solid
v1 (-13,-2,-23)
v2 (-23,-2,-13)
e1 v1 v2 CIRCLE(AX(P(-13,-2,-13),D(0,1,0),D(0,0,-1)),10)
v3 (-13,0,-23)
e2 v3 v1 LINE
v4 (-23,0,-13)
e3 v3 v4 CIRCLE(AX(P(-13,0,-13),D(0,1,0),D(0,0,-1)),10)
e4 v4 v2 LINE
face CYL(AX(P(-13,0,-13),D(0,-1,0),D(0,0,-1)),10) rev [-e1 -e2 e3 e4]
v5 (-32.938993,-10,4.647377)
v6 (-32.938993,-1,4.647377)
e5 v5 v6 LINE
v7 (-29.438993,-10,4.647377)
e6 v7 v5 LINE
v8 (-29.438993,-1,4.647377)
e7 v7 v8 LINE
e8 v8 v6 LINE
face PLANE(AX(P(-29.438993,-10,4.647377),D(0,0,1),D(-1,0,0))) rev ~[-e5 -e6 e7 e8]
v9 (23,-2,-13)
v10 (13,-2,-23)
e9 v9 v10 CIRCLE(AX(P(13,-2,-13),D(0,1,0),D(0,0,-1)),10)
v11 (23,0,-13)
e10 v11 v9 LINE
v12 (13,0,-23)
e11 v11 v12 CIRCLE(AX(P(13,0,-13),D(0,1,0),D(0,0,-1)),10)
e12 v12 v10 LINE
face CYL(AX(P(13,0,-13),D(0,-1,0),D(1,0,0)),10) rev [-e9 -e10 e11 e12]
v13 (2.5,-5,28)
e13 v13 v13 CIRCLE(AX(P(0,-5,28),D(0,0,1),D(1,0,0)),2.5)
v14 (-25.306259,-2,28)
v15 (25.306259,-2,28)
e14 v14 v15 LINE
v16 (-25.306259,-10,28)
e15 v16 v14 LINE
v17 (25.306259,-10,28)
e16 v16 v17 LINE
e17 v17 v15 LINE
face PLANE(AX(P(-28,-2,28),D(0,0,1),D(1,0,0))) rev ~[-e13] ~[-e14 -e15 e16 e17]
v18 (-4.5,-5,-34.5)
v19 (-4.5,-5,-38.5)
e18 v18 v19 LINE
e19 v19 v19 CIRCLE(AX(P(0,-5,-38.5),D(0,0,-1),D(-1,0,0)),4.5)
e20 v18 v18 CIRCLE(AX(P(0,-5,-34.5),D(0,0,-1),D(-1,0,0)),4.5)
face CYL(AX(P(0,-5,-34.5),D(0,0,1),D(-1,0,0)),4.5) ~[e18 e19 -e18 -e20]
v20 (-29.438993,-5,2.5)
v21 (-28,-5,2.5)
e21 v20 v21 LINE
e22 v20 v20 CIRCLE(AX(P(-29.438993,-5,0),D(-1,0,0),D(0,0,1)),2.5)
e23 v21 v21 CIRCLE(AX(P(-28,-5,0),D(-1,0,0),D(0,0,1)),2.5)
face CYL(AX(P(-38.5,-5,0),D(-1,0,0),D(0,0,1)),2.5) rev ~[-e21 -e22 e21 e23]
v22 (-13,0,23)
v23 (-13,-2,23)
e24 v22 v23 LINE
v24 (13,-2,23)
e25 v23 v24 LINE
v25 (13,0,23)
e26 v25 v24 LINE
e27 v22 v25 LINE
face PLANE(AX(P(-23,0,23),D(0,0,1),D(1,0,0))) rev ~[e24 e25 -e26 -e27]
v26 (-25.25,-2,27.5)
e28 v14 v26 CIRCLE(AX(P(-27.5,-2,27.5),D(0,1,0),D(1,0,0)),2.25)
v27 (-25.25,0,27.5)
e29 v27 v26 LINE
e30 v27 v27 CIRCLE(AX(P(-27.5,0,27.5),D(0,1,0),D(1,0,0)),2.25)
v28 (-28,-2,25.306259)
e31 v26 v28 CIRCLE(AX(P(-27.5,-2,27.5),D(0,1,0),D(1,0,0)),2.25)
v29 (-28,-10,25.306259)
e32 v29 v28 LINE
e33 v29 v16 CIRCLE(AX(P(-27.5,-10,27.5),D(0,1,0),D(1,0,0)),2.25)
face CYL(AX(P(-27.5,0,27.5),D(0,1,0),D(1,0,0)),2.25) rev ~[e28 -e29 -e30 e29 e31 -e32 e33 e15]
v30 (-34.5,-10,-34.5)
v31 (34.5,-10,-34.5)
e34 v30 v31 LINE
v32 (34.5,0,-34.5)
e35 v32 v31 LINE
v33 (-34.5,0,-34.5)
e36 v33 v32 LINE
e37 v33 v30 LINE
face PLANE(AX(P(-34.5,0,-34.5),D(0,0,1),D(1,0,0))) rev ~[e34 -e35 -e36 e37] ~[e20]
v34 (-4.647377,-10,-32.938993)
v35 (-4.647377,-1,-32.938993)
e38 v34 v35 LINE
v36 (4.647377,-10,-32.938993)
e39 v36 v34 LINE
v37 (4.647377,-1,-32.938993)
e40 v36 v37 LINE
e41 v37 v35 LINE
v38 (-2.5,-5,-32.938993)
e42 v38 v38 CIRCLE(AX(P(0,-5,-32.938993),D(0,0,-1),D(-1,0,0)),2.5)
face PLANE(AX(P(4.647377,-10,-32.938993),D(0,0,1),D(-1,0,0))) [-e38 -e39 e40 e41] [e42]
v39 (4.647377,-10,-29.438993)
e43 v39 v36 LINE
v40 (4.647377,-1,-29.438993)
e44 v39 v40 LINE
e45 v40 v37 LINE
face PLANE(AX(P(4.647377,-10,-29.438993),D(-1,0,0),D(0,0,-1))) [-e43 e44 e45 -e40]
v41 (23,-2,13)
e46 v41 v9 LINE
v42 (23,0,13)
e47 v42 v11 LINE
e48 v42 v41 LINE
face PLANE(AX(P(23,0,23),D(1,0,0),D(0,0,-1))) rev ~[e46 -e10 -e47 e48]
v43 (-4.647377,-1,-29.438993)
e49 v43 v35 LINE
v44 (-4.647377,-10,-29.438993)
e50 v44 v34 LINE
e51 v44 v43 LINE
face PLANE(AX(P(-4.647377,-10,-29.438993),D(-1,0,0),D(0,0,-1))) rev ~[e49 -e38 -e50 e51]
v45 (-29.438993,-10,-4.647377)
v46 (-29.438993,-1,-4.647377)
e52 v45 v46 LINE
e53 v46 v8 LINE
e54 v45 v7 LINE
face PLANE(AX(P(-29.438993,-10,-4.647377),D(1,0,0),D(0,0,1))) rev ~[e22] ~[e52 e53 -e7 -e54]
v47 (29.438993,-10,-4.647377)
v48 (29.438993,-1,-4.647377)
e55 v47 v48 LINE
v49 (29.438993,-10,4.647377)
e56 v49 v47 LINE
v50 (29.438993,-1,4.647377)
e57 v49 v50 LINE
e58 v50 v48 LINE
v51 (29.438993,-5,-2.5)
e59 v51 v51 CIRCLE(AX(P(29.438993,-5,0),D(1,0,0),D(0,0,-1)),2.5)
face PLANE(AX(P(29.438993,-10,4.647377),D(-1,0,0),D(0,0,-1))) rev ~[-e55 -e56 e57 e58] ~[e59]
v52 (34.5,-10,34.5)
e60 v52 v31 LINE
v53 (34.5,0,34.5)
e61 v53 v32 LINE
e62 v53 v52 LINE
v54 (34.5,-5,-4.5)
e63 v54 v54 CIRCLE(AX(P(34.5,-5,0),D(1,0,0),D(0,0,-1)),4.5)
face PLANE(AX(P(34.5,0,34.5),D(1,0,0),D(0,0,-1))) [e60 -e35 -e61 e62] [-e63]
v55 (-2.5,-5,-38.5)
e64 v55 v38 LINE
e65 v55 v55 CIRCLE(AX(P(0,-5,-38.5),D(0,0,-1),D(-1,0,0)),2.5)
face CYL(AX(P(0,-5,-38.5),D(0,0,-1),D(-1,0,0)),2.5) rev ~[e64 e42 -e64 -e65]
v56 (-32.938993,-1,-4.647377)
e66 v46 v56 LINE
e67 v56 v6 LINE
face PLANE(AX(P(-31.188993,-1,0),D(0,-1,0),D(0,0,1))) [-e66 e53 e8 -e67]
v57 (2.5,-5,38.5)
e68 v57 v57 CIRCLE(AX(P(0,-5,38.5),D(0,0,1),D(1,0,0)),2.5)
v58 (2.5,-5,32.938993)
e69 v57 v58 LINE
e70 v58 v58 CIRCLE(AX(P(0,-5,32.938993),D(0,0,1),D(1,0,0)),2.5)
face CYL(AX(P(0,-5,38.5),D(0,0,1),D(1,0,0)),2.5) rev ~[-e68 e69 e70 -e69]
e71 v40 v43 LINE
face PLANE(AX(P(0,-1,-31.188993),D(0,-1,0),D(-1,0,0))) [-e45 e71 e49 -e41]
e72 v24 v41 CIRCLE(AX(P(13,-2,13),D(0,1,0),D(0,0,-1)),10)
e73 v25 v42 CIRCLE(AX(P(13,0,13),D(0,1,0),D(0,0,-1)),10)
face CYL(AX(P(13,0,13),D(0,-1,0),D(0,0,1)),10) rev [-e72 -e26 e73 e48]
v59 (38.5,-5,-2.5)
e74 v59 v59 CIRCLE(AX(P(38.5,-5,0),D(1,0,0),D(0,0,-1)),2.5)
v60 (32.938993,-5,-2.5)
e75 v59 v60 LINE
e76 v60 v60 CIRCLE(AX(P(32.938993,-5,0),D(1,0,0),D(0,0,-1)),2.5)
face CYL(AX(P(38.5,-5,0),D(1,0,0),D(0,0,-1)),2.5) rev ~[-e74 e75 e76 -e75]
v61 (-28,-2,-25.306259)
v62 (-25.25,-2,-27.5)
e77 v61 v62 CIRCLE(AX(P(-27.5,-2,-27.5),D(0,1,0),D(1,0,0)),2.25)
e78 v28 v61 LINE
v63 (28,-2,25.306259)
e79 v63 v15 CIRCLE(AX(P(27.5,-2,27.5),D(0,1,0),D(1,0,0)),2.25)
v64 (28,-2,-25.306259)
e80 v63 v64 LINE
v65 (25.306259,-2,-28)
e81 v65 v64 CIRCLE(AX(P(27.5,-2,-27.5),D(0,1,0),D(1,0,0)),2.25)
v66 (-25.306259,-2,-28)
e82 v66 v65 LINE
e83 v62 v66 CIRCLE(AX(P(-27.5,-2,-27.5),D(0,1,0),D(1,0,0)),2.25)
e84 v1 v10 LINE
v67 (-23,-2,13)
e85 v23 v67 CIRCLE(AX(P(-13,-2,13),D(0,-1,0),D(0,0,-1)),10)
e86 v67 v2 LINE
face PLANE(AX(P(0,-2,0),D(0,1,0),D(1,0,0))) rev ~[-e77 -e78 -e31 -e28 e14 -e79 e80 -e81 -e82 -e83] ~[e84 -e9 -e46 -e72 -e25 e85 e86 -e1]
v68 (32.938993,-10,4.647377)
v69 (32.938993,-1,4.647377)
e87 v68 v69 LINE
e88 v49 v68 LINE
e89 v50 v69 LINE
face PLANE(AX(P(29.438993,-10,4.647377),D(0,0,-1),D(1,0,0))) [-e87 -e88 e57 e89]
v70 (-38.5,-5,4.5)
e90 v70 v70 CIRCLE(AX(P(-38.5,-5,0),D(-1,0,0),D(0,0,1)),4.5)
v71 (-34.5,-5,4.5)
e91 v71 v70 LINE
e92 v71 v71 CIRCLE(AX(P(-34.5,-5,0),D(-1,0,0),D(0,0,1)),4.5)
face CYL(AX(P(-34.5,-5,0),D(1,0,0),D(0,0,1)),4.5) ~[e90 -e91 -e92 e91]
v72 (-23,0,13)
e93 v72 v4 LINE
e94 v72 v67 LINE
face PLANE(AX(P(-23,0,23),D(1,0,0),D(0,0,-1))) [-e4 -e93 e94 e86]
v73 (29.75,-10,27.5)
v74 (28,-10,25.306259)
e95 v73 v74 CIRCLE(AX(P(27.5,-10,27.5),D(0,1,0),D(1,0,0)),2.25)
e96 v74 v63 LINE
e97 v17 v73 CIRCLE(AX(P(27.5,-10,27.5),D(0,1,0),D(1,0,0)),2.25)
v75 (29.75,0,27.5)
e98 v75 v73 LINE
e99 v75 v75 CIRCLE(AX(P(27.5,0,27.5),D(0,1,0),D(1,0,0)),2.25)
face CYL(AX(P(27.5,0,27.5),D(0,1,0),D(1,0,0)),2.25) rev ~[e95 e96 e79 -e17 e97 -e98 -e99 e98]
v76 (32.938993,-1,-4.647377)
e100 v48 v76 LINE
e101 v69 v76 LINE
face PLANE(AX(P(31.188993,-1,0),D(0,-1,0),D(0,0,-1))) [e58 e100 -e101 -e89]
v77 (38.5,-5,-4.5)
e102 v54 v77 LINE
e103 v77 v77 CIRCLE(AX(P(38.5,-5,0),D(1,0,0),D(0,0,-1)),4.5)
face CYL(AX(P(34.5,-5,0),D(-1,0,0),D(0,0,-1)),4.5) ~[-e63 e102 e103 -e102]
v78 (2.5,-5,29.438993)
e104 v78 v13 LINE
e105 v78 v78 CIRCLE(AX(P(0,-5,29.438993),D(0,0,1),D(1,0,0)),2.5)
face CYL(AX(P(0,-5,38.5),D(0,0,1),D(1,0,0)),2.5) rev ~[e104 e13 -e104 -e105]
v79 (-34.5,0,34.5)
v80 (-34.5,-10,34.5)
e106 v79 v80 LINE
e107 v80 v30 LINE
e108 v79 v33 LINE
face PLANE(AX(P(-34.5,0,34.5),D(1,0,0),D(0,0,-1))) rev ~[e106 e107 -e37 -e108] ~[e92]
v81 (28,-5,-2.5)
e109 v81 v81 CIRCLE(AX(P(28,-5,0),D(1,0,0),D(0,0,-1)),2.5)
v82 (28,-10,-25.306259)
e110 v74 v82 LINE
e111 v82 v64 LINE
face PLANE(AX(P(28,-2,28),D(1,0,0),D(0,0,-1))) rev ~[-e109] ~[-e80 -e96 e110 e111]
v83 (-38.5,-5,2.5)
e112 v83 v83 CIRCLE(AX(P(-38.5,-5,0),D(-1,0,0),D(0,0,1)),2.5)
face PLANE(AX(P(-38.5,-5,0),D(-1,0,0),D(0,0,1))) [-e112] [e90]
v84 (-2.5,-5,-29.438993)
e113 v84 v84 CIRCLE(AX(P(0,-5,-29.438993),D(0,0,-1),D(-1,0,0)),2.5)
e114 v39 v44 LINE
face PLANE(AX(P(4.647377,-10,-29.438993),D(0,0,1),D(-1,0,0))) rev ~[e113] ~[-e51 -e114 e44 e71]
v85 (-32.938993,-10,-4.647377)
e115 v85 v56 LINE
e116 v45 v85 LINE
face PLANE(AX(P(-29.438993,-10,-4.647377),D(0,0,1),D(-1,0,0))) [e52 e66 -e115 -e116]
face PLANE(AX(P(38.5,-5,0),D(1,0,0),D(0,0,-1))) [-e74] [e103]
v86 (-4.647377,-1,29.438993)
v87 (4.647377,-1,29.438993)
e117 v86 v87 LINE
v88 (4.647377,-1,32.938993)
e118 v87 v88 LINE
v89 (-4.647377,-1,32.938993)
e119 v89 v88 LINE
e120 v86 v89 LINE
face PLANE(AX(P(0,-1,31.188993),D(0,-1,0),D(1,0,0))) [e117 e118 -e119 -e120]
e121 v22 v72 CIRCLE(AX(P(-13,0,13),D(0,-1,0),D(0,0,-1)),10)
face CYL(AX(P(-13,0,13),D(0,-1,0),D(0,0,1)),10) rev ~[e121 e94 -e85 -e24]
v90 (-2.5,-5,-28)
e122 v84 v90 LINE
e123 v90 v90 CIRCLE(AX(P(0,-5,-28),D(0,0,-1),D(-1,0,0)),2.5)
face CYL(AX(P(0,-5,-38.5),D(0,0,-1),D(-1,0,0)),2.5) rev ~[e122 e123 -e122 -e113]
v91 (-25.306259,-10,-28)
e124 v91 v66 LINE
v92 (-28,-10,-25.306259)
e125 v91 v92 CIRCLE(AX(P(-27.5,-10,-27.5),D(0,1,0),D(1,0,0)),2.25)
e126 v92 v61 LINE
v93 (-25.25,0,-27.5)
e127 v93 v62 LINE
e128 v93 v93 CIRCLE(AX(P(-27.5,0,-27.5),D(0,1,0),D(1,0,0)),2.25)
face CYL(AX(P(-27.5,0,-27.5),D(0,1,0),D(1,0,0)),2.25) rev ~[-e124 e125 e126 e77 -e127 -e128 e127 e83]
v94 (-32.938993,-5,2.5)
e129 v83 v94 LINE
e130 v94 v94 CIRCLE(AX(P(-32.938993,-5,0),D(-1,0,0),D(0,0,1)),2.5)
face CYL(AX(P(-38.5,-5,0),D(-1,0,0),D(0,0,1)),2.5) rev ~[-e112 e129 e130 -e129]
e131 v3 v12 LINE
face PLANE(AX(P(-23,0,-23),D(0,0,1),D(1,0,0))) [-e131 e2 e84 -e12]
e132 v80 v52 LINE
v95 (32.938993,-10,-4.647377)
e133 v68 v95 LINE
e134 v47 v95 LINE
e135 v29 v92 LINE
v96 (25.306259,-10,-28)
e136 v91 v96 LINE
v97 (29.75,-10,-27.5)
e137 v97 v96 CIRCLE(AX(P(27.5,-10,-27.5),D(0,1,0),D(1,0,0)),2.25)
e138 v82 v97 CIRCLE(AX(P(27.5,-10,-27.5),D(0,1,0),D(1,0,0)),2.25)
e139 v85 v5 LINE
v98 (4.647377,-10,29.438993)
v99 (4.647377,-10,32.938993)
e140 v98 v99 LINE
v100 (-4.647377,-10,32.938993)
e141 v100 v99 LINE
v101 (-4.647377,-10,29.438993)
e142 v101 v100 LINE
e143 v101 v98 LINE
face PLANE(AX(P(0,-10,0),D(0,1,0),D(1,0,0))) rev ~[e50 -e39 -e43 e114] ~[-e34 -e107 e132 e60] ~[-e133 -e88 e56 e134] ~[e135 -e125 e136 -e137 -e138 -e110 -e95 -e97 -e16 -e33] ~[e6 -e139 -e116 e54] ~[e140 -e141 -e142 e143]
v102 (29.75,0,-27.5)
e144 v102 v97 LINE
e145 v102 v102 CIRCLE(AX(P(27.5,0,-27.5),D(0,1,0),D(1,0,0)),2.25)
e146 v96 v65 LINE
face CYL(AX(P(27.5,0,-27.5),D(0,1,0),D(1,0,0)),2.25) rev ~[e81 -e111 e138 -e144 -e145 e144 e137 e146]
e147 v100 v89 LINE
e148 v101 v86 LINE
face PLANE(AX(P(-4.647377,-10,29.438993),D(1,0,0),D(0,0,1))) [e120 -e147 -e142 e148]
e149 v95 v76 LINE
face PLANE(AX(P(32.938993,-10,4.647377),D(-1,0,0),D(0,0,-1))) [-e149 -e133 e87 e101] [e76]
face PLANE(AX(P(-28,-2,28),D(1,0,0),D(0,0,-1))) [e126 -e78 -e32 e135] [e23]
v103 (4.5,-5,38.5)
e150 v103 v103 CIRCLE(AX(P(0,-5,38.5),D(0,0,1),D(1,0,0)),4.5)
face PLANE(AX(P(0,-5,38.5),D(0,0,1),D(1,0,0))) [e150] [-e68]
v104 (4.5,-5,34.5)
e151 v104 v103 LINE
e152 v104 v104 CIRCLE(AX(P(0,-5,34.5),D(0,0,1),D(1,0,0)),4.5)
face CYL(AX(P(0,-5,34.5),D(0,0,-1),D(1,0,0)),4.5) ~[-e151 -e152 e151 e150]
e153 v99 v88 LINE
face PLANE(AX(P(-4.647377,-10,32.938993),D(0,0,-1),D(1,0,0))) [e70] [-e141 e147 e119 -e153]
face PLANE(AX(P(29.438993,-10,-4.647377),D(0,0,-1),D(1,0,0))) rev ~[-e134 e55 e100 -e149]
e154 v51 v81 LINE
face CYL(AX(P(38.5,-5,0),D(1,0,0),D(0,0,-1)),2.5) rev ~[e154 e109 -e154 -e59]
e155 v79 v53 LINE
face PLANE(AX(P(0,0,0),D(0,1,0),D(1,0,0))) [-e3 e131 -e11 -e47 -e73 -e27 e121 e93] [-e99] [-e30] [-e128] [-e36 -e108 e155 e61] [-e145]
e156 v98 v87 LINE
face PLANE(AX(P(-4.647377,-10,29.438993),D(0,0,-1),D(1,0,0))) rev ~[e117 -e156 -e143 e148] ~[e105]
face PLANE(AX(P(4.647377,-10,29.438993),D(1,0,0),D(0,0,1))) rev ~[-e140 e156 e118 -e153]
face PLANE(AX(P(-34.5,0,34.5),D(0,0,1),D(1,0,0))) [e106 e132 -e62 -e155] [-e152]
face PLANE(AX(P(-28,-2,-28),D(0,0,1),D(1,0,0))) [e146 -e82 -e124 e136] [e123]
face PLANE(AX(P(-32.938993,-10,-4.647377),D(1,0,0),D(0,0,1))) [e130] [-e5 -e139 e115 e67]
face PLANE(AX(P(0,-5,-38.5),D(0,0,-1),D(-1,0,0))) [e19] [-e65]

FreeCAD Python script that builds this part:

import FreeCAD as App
import Part
import Sketcher
Q = App.Units.Quantity


def edges_at(feature, points):
    """Names of the edges that pass closest to the given points."""
    edges = feature.Shape.Edges
    near = lambda p: min(range(len(edges)), key=lambda i: edges[i].distToShape(Part.Vertex(*p))[0])
    return sorted({f"Edge{near(p) + 1}" for p in points})


def add_polygon(sketch, points):
    """Adds a closed chain of lines whose ends are joined by coincident constraints."""
    first, n = sketch.GeometryCount, len(points)
    for a, b in zip(points, points[1:] + points[:1]):
        sketch.addGeometry(Part.LineSegment(App.Vector(*a, 0), App.Vector(*b, 0)), False)
    for i in range(n):
        sketch.addConstraint(Sketcher.Constraint("Coincident", first + i, 2, first + (i + 1) % n, 1))

doc = App.newDocument("Part")
params = doc.addObject("Spreadsheet::Sheet", "Params")
for row, (alias, value) in enumerate([
    ("sketch1_width", "69 mm"),
    ("pad1_length", "10 mm"),
    ("sketch2_diameter", "4.5 mm"),
    ("sketch3_width", "56 mm"),
    ("pocket2_length", "10 mm"),
    ("sketch4_width", "46 mm"),
    ("fillet_radius", "10 mm"),
    ("sketch5_diameter", "9 mm"),
    ("pad2_length", "4 mm"),
    ("sketch6_diameter", "5 mm"),
    ("pocket4_length", "10.5 mm"),
    ("sketch7_height", "3.5 mm"),
    ("pocket5_length", "9 mm"),
], start=1):
    params.set(f"A{row}", alias)
    params.set(f"B{row}", "=" + value)
    params.setAlias(f"B{row}", alias)

body = doc.addObject("PartDesign::Body", "Body")

# Sketch on XZ plane
sketch1 = doc.addObject("Sketcher::SketchObject", "Sketch")
body.addObject(sketch1)
sketch1.AttachmentSupport = (doc.XZ_Plane, [""])
sketch1.MapMode = "FlatFace"
add_polygon(sketch1, [(-34, -34), (-34, 34), (34, 34), (34, -34)])  # lines 0-3
sketch1.addConstraint([
    Sketcher.Constraint("Vertical", 0),
    Sketcher.Constraint("Horizontal", 1),
    Sketcher.Constraint("Vertical", 2),
    Sketcher.Constraint("Horizontal", 3),
    Sketcher.Constraint("Symmetric", 0, 2, 2, 2, -1, 1),
    Sketcher.Constraint("Equal", 3, 0),
    Sketcher.Constraint("DistanceX", 1, 1, 1, 2, Q("69 mm")),
])
sketch1.setExpression("Constraints[10]", "Params.sketch1_width")
pad1 = doc.addObject("PartDesign::Pad", "Pad")
body.addObject(pad1)
pad1.Profile = sketch1
pad1.setExpression("Length", "Params.pad1_length")

# Sketch on XZ plane
sketch2 = doc.addObject("Sketcher::SketchObject", "Sketch001")
body.addObject(sketch2)
sketch2.AttachmentSupport = (doc.XZ_Plane, [""])
sketch2.MapMode = "FlatFace"
sketch2.addGeometry([
    Part.Circle(App.Vector(27.5, -27.5, 0), App.Vector(0, 0, 1), 2.2),
    Part.Circle(App.Vector(27.5, 27.5, 0), App.Vector(0, 0, 1), 2.2),
    Part.Circle(App.Vector(-27.5, 27.5, 0), App.Vector(0, 0, 1), 2.2),
    Part.Circle(App.Vector(-27.5, -27.5, 0), App.Vector(0, 0, 1), 2.2),
], False)
sketch2.addConstraint([
    Sketcher.Constraint("Equal", 0, 1),
    Sketcher.Constraint("Equal", 1, 2),
    Sketcher.Constraint("Equal", 2, 3),
    Sketcher.Constraint("Symmetric", 0, 3, 2, 3, -1, 1),
    Sketcher.Constraint("Symmetric", 1, 3, 3, 3, -1, 1),
    Sketcher.Constraint("Symmetric", 1, 3, 2, 3, -2),
    Sketcher.Constraint("Diameter", 0, Q("4.5 mm")),
    Sketcher.Constraint("DistanceY", 0, 3, 1, 3, Q("55 mm")),
    Sketcher.Constraint("DistanceX", 2, 3, 1, 3, Q("55 mm")),
])
sketch2.setExpression("Constraints[6]", "Params.sketch2_diameter")
pocket1 = doc.addObject("PartDesign::Pocket", "Pocket")
body.addObject(pocket1)
pocket1.Profile = sketch2
pocket1.Type = "ThroughAll"
pocket1.Midplane = True

# Sketch on XZ plane
sketch3 = doc.addObject("Sketcher::SketchObject", "Sketch002")
body.addObject(sketch3)
sketch3.AttachmentSupport = (doc.XZ_Plane, [""])
sketch3.MapMode = "FlatFace"
sketch3.AttachmentOffset = App.Placement(App.Vector(0, 0, 2), App.Rotation())
add_polygon(sketch3, [(-28, -28), (-28, 28), (28, 28), (28, -28)])  # lines 0-3
sketch3.addConstraint([
    Sketcher.Constraint("Vertical", 0),
    Sketcher.Constraint("Horizontal", 1),
    Sketcher.Constraint("Vertical", 2),
    Sketcher.Constraint("Horizontal", 3),
    Sketcher.Constraint("Symmetric", 0, 2, 2, 2, -1, 1),
    Sketcher.Constraint("Equal", 3, 0),
    Sketcher.Constraint("DistanceX", 1, 1, 1, 2, Q("56 mm")),
])
sketch3.setExpression("Constraints[10]", "Params.sketch3_width")
pocket2 = doc.addObject("PartDesign::Pocket", "Pocket001")
body.addObject(pocket2)
pocket2.Profile = sketch3
pocket2.setExpression("Length", "Params.pocket2_length")
pocket2.Reversed = True

# Sketch on XZ plane
sketch4 = doc.addObject("Sketcher::SketchObject", "Sketch003")
body.addObject(sketch4)
sketch4.AttachmentSupport = (doc.XZ_Plane, [""])
sketch4.MapMode = "FlatFace"
add_polygon(sketch4, [(-23, -23), (-23, 23), (23, 23), (23, -23)])  # lines 0-3
sketch4.addConstraint([
    Sketcher.Constraint("Vertical", 0),
    Sketcher.Constraint("Horizontal", 1),
    Sketcher.Constraint("Vertical", 2),
    Sketcher.Constraint("Horizontal", 3),
    Sketcher.Constraint("Symmetric", 0, 2, 2, 2, -1, 1),
    Sketcher.Constraint("Equal", 3, 0),
    Sketcher.Constraint("DistanceX", 1, 1, 1, 2, Q("46 mm")),
])
sketch4.setExpression("Constraints[10]", "Params.sketch4_width")
pocket3 = doc.addObject("PartDesign::Pocket", "Pocket002")
body.addObject(pocket3)
pocket3.Profile = sketch4
pocket3.Type = "ThroughAll"
pocket3.Midplane = True
doc.recompute()

fillet = doc.addObject("PartDesign::Fillet", "Fillet")
body.addObject(fillet)
fillet.Base = (pocket3, edges_at(pocket3, [
    (23, -1, -23),
    (23, -1, 23),
    (-23, -1, 23),
    (-23, -1, -23),
]))
fillet.setExpression("Radius", "Params.fillet_radius")

# Sketch on XY plane
sketch5 = doc.addObject("Sketcher::SketchObject", "Sketch004")
body.addObject(sketch5)
sketch5.AttachmentSupport = (doc.XY_Plane, [""])
sketch5.MapMode = "FlatFace"
sketch5.AttachmentOffset = App.Placement(App.Vector(0, 0, -34.5), App.Rotation())
sketch5.addGeometry(Part.Circle(App.Vector(0, -5, 0), App.Vector(0, 0, 1), 4.5), False)
sketch5.addConstraint([
    Sketcher.Constraint("PointOnObject", 0, 3, -2),
    Sketcher.Constraint("Diameter", 0, Q("9 mm")),
    Sketcher.Constraint("DistanceY", 0, 3, -1, 1, Q("5 mm")),
])
sketch5.setExpression("Constraints[1]", "Params.sketch5_diameter")
pad2 = doc.addObject("PartDesign::Pad", "Pad001")
body.addObject(pad2)
pad2.Profile = sketch5
pad2.setExpression("Length", "Params.pad2_length")
pad2.Reversed = True

# Sketch on XY plane
sketch6 = doc.addObject("Sketcher::SketchObject", "Sketch005")
body.addObject(sketch6)
sketch6.AttachmentSupport = (doc.XY_Plane, [""])
sketch6.MapMode = "FlatFace"
sketch6.AttachmentOffset = App.Placement(App.Vector(0, 0, -38.5), App.Rotation())
sketch6.addGeometry(Part.Circle(App.Vector(0, -5, 0), App.Vector(0, 0, 1), 2.5), False)
sketch6.addConstraint([
    Sketcher.Constraint("PointOnObject", 0, 3, -2),
    Sketcher.Constraint("Diameter", 0, Q("5 mm")),
    Sketcher.Constraint("DistanceY", 0, 3, -1, 1, Q("5 mm")),
])
sketch6.setExpression("Constraints[1]", "Params.sketch6_diameter")
pocket4 = doc.addObject("PartDesign::Pocket", "Pocket003")
body.addObject(pocket4)
pocket4.Profile = sketch6
pocket4.setExpression("Length", "Params.pocket4_length")
pocket4.Reversed = True

# Sketch on XZ plane
sketch7 = doc.addObject("Sketcher::SketchObject", "Sketch006")
body.addObject(sketch7)
sketch7.AttachmentSupport = (doc.XZ_Plane, [""])
sketch7.MapMode = "FlatFace"
sketch7.AttachmentOffset = App.Placement(App.Vector(0, 0, 10), App.Rotation())
add_polygon(sketch7, [(4.6, -32.9), (4.6, -29.4), (-4.6, -29.4), (-4.6, -32.9)])  # lines 0-3
sketch7.addConstraint([
    Sketcher.Constraint("Vertical", 0),
    Sketcher.Constraint("Horizontal", 1),
    Sketcher.Constraint("Vertical", 2),
    Sketcher.Constraint("Horizontal", 3),
    Sketcher.Constraint("DistanceY", 0, 1, 0, 2, Q("3.5 mm")),
    Sketcher.Constraint("DistanceX", 1, 2, 1, 1, Q("9.294754 mm")),
    Sketcher.Constraint("DistanceX", -1, 1, 0, 2, Q("4.647377 mm")),
    Sketcher.Constraint("DistanceY", 0, 2, -1, 1, Q("29.438993 mm")),
])
sketch7.setExpression("Constraints[8]", "Params.sketch7_height")
pocket5 = doc.addObject("PartDesign::Pocket", "Pocket004")
body.addObject(pocket5)
pocket5.Profile = sketch7
pocket5.setExpression("Length", "Params.pocket5_length")
doc.recompute()

polarpattern = doc.addObject("PartDesign::PolarPattern", "PolarPattern")
body.addObject(polarpattern)
polarpattern.Originals = [pad2, pocket4, pocket5]
polarpattern.Axis = (doc.Y_Axis, [""])
polarpattern.Angle = 360
polarpattern.Occurrences = 4
body.Tip = polarpattern

doc.recompute()
